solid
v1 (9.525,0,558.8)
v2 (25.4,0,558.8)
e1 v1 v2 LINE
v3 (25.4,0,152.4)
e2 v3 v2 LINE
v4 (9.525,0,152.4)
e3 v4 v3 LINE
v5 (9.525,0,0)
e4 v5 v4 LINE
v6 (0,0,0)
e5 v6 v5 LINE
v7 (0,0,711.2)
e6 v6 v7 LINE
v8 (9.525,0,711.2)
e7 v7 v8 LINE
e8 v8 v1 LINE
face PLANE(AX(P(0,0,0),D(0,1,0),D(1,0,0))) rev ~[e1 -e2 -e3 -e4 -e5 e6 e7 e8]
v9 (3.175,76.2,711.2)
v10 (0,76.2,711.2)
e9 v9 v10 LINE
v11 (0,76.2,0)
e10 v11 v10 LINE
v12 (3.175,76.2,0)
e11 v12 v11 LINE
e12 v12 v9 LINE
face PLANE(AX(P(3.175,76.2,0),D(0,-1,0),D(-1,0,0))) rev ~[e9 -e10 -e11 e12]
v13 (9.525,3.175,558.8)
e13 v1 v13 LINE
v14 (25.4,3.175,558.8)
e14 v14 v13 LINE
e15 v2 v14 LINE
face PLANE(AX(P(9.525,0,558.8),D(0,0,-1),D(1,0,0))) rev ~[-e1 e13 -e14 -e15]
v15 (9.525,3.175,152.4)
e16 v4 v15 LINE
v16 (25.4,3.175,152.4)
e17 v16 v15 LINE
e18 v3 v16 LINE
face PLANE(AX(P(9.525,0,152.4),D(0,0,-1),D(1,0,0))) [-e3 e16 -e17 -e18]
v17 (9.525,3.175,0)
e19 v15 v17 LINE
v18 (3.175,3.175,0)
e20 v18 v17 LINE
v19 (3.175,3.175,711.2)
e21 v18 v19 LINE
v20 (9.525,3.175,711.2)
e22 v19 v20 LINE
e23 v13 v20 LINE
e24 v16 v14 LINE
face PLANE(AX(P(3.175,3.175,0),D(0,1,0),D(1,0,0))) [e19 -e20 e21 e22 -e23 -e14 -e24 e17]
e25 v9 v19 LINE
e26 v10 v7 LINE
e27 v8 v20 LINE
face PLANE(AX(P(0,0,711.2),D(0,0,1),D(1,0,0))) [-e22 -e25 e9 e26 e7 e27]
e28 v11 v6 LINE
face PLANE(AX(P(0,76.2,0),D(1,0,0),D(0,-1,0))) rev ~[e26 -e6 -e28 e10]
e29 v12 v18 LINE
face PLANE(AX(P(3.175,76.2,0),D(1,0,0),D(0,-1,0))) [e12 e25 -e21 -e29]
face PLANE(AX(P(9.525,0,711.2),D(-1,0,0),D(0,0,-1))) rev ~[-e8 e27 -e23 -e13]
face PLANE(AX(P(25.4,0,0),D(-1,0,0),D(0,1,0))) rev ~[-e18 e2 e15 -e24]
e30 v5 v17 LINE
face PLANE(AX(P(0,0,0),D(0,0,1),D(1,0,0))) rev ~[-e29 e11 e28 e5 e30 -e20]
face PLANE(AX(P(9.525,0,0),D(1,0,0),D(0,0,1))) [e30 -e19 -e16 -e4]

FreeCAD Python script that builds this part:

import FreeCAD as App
import Part
import Sketcher
Q = App.Units.Quantity

doc = App.newDocument("Part")
body = doc.addObject("PartDesign::Body", "Body")

# Sketch on XY plane
sketch1 = body.newObject("Sketcher::SketchObject", "Sketch")
sketch1.AttachmentSupport = (doc.getObject("XY_Plane"), [""])
sketch1.MapMode = "FlatFace"
sketch1.addGeometry([
    Part.LineSegment(App.Vector(0, 76.2, 0), App.Vector(0, 0, 0)),  # 0
    Part.LineSegment(App.Vector(0, 0, 0), App.Vector(25.4, 0, 0)),  # 1
    Part.LineSegment(App.Vector(25.4, 0, 0), App.Vector(25.4, 3.2, 0)),  # 2
    Part.LineSegment(App.Vector(25.4, 3.2, 0), App.Vector(3.2, 3.2, 0)),  # 3
    Part.LineSegment(App.Vector(3.2, 3.2, 0), App.Vector(3.2, 76.2, 0)),  # 4
    Part.LineSegment(App.Vector(3.2, 76.2, 0), App.Vector(0, 76.2, 0)),  # 5
], False)
sketch1.addConstraint([
    Sketcher.Constraint("Coincident", 0, 2, 1, 1),
    Sketcher.Constraint("Coincident", 1, 2, 2, 1),
    Sketcher.Constraint("Coincident", 2, 2, 3, 1),
    Sketcher.Constraint("Coincident", 3, 2, 4, 1),
    Sketcher.Constraint("Coincident", 4, 2, 5, 1),
    Sketcher.Constraint("Coincident", 5, 2, 0, 1),
    Sketcher.Constraint("Vertical", 0),
    Sketcher.Constraint("Horizontal", 1),
    Sketcher.Constraint("Vertical", 2),
    Sketcher.Constraint("Horizontal", 3),
    Sketcher.Constraint("Vertical", 4),
    Sketcher.Constraint("Horizontal", 5),
    Sketcher.Constraint("Coincident", 0, 2, -1, 1),
    Sketcher.Constraint("Equal", 5, 2),
    Sketcher.Constraint("DistanceX", 1, 1, 1, 2, Q("1 in")),
    Sketcher.Constraint("DistanceY", 0, 2, 0, 1, Q("3 in")),
    Sketcher.Constraint("DistanceX", 5, 2, 5, 1, Q("0.125 in")),
])
pad1 = body.newObject("PartDesign::Pad", "Pad")
pad1.Profile = sketch1
pad1.Length = Q("28 in")

# Sketch on XZ plane
sketch2 = body.newObject("Sketcher::SketchObject", "Sketch001")
sketch2.AttachmentSupport = (doc.getObject("XZ_Plane"), [""])
sketch2.MapMode = "FlatFace"
sketch2.addGeometry([
    Part.LineSegment(App.Vector(10, 0, 0), App.Vector(25, 0, 0)),  # 0
    Part.LineSegment(App.Vector(25, 0, 0), App.Vector(25, 152, 0)),  # 1
    Part.LineSegment(App.Vector(25, 152, 0), App.Vector(10, 152, 0)),  # 2
    Part.LineSegment(App.Vector(10, 152, 0), App.Vector(10, 0, 0)),  # 3
    Part.LineSegment(App.Vector(10, 559, 0), App.Vector(25, 559, 0)),  # 4
    Part.LineSegment(App.Vector(25, 559, 0), App.Vector(25, 711, 0)),  # 5
    Part.LineSegment(App.Vector(25, 711, 0), App.Vector(10, 711, 0)),  # 6
    Part.LineSegment(App.Vector(10, 711, 0), App.Vector(10, 559, 0)),  # 7
], False)
sketch2.addConstraint([
    Sketcher.Constraint("Coincident", 0, 2, 1, 1),
    Sketcher.Constraint("Coincident", 1, 2, 2, 1),
    Sketcher.Constraint("Coincident", 2, 2, 3, 1),
    Sketcher.Constraint("Coincident", 3, 2, 0, 1),
    Sketcher.Constraint("Coincident", 4, 2, 5, 1),
    Sketcher.Constraint("Coincident", 5, 2, 6, 1),
    Sketcher.Constraint("Coincident", 6, 2, 7, 1),
    Sketcher.Constraint("Coincident", 7, 2, 4, 1),
    Sketcher.Constraint("Horizontal", 0),
    Sketcher.Constraint("Vertical", 1),
    Sketcher.Constraint("Horizontal", 2),
    Sketcher.Constraint("Vertical", 3),
    Sketcher.Constraint("Horizontal", 4),
    Sketcher.Constraint("Vertical", 5),
    Sketcher.Constraint("Horizontal", 6),
    Sketcher.Constraint("Vertical", 7),
    Sketcher.Constraint("PointOnObject", 0, 2, -1),
    Sketcher.Constraint("Vertical", 1, 2, 4, 2),
    Sketcher.Constraint("Vertical", 3, 2, 6, 2),
    Sketcher.Constraint("Equal", 3, 5),
    Sketcher.Constraint("DistanceY", 1, 1, 1, 2, Q("6 in")),
    Sketcher.Constraint("DistanceX", 0, 1, 0, 2, Q("0.625 in")),
    Sketcher.Constraint("DistanceX", -1, 1, 0, 2, Q("1 in")),
    Sketcher.Constraint("DistanceY", -1, 1, 4, 2, Q("22 in")),
])
pocket1 = body.newObject("PartDesign::Pocket", "Pocket")
pocket1.Profile = sketch2
pocket1.Type = "ThroughAll"

doc.recompute()
